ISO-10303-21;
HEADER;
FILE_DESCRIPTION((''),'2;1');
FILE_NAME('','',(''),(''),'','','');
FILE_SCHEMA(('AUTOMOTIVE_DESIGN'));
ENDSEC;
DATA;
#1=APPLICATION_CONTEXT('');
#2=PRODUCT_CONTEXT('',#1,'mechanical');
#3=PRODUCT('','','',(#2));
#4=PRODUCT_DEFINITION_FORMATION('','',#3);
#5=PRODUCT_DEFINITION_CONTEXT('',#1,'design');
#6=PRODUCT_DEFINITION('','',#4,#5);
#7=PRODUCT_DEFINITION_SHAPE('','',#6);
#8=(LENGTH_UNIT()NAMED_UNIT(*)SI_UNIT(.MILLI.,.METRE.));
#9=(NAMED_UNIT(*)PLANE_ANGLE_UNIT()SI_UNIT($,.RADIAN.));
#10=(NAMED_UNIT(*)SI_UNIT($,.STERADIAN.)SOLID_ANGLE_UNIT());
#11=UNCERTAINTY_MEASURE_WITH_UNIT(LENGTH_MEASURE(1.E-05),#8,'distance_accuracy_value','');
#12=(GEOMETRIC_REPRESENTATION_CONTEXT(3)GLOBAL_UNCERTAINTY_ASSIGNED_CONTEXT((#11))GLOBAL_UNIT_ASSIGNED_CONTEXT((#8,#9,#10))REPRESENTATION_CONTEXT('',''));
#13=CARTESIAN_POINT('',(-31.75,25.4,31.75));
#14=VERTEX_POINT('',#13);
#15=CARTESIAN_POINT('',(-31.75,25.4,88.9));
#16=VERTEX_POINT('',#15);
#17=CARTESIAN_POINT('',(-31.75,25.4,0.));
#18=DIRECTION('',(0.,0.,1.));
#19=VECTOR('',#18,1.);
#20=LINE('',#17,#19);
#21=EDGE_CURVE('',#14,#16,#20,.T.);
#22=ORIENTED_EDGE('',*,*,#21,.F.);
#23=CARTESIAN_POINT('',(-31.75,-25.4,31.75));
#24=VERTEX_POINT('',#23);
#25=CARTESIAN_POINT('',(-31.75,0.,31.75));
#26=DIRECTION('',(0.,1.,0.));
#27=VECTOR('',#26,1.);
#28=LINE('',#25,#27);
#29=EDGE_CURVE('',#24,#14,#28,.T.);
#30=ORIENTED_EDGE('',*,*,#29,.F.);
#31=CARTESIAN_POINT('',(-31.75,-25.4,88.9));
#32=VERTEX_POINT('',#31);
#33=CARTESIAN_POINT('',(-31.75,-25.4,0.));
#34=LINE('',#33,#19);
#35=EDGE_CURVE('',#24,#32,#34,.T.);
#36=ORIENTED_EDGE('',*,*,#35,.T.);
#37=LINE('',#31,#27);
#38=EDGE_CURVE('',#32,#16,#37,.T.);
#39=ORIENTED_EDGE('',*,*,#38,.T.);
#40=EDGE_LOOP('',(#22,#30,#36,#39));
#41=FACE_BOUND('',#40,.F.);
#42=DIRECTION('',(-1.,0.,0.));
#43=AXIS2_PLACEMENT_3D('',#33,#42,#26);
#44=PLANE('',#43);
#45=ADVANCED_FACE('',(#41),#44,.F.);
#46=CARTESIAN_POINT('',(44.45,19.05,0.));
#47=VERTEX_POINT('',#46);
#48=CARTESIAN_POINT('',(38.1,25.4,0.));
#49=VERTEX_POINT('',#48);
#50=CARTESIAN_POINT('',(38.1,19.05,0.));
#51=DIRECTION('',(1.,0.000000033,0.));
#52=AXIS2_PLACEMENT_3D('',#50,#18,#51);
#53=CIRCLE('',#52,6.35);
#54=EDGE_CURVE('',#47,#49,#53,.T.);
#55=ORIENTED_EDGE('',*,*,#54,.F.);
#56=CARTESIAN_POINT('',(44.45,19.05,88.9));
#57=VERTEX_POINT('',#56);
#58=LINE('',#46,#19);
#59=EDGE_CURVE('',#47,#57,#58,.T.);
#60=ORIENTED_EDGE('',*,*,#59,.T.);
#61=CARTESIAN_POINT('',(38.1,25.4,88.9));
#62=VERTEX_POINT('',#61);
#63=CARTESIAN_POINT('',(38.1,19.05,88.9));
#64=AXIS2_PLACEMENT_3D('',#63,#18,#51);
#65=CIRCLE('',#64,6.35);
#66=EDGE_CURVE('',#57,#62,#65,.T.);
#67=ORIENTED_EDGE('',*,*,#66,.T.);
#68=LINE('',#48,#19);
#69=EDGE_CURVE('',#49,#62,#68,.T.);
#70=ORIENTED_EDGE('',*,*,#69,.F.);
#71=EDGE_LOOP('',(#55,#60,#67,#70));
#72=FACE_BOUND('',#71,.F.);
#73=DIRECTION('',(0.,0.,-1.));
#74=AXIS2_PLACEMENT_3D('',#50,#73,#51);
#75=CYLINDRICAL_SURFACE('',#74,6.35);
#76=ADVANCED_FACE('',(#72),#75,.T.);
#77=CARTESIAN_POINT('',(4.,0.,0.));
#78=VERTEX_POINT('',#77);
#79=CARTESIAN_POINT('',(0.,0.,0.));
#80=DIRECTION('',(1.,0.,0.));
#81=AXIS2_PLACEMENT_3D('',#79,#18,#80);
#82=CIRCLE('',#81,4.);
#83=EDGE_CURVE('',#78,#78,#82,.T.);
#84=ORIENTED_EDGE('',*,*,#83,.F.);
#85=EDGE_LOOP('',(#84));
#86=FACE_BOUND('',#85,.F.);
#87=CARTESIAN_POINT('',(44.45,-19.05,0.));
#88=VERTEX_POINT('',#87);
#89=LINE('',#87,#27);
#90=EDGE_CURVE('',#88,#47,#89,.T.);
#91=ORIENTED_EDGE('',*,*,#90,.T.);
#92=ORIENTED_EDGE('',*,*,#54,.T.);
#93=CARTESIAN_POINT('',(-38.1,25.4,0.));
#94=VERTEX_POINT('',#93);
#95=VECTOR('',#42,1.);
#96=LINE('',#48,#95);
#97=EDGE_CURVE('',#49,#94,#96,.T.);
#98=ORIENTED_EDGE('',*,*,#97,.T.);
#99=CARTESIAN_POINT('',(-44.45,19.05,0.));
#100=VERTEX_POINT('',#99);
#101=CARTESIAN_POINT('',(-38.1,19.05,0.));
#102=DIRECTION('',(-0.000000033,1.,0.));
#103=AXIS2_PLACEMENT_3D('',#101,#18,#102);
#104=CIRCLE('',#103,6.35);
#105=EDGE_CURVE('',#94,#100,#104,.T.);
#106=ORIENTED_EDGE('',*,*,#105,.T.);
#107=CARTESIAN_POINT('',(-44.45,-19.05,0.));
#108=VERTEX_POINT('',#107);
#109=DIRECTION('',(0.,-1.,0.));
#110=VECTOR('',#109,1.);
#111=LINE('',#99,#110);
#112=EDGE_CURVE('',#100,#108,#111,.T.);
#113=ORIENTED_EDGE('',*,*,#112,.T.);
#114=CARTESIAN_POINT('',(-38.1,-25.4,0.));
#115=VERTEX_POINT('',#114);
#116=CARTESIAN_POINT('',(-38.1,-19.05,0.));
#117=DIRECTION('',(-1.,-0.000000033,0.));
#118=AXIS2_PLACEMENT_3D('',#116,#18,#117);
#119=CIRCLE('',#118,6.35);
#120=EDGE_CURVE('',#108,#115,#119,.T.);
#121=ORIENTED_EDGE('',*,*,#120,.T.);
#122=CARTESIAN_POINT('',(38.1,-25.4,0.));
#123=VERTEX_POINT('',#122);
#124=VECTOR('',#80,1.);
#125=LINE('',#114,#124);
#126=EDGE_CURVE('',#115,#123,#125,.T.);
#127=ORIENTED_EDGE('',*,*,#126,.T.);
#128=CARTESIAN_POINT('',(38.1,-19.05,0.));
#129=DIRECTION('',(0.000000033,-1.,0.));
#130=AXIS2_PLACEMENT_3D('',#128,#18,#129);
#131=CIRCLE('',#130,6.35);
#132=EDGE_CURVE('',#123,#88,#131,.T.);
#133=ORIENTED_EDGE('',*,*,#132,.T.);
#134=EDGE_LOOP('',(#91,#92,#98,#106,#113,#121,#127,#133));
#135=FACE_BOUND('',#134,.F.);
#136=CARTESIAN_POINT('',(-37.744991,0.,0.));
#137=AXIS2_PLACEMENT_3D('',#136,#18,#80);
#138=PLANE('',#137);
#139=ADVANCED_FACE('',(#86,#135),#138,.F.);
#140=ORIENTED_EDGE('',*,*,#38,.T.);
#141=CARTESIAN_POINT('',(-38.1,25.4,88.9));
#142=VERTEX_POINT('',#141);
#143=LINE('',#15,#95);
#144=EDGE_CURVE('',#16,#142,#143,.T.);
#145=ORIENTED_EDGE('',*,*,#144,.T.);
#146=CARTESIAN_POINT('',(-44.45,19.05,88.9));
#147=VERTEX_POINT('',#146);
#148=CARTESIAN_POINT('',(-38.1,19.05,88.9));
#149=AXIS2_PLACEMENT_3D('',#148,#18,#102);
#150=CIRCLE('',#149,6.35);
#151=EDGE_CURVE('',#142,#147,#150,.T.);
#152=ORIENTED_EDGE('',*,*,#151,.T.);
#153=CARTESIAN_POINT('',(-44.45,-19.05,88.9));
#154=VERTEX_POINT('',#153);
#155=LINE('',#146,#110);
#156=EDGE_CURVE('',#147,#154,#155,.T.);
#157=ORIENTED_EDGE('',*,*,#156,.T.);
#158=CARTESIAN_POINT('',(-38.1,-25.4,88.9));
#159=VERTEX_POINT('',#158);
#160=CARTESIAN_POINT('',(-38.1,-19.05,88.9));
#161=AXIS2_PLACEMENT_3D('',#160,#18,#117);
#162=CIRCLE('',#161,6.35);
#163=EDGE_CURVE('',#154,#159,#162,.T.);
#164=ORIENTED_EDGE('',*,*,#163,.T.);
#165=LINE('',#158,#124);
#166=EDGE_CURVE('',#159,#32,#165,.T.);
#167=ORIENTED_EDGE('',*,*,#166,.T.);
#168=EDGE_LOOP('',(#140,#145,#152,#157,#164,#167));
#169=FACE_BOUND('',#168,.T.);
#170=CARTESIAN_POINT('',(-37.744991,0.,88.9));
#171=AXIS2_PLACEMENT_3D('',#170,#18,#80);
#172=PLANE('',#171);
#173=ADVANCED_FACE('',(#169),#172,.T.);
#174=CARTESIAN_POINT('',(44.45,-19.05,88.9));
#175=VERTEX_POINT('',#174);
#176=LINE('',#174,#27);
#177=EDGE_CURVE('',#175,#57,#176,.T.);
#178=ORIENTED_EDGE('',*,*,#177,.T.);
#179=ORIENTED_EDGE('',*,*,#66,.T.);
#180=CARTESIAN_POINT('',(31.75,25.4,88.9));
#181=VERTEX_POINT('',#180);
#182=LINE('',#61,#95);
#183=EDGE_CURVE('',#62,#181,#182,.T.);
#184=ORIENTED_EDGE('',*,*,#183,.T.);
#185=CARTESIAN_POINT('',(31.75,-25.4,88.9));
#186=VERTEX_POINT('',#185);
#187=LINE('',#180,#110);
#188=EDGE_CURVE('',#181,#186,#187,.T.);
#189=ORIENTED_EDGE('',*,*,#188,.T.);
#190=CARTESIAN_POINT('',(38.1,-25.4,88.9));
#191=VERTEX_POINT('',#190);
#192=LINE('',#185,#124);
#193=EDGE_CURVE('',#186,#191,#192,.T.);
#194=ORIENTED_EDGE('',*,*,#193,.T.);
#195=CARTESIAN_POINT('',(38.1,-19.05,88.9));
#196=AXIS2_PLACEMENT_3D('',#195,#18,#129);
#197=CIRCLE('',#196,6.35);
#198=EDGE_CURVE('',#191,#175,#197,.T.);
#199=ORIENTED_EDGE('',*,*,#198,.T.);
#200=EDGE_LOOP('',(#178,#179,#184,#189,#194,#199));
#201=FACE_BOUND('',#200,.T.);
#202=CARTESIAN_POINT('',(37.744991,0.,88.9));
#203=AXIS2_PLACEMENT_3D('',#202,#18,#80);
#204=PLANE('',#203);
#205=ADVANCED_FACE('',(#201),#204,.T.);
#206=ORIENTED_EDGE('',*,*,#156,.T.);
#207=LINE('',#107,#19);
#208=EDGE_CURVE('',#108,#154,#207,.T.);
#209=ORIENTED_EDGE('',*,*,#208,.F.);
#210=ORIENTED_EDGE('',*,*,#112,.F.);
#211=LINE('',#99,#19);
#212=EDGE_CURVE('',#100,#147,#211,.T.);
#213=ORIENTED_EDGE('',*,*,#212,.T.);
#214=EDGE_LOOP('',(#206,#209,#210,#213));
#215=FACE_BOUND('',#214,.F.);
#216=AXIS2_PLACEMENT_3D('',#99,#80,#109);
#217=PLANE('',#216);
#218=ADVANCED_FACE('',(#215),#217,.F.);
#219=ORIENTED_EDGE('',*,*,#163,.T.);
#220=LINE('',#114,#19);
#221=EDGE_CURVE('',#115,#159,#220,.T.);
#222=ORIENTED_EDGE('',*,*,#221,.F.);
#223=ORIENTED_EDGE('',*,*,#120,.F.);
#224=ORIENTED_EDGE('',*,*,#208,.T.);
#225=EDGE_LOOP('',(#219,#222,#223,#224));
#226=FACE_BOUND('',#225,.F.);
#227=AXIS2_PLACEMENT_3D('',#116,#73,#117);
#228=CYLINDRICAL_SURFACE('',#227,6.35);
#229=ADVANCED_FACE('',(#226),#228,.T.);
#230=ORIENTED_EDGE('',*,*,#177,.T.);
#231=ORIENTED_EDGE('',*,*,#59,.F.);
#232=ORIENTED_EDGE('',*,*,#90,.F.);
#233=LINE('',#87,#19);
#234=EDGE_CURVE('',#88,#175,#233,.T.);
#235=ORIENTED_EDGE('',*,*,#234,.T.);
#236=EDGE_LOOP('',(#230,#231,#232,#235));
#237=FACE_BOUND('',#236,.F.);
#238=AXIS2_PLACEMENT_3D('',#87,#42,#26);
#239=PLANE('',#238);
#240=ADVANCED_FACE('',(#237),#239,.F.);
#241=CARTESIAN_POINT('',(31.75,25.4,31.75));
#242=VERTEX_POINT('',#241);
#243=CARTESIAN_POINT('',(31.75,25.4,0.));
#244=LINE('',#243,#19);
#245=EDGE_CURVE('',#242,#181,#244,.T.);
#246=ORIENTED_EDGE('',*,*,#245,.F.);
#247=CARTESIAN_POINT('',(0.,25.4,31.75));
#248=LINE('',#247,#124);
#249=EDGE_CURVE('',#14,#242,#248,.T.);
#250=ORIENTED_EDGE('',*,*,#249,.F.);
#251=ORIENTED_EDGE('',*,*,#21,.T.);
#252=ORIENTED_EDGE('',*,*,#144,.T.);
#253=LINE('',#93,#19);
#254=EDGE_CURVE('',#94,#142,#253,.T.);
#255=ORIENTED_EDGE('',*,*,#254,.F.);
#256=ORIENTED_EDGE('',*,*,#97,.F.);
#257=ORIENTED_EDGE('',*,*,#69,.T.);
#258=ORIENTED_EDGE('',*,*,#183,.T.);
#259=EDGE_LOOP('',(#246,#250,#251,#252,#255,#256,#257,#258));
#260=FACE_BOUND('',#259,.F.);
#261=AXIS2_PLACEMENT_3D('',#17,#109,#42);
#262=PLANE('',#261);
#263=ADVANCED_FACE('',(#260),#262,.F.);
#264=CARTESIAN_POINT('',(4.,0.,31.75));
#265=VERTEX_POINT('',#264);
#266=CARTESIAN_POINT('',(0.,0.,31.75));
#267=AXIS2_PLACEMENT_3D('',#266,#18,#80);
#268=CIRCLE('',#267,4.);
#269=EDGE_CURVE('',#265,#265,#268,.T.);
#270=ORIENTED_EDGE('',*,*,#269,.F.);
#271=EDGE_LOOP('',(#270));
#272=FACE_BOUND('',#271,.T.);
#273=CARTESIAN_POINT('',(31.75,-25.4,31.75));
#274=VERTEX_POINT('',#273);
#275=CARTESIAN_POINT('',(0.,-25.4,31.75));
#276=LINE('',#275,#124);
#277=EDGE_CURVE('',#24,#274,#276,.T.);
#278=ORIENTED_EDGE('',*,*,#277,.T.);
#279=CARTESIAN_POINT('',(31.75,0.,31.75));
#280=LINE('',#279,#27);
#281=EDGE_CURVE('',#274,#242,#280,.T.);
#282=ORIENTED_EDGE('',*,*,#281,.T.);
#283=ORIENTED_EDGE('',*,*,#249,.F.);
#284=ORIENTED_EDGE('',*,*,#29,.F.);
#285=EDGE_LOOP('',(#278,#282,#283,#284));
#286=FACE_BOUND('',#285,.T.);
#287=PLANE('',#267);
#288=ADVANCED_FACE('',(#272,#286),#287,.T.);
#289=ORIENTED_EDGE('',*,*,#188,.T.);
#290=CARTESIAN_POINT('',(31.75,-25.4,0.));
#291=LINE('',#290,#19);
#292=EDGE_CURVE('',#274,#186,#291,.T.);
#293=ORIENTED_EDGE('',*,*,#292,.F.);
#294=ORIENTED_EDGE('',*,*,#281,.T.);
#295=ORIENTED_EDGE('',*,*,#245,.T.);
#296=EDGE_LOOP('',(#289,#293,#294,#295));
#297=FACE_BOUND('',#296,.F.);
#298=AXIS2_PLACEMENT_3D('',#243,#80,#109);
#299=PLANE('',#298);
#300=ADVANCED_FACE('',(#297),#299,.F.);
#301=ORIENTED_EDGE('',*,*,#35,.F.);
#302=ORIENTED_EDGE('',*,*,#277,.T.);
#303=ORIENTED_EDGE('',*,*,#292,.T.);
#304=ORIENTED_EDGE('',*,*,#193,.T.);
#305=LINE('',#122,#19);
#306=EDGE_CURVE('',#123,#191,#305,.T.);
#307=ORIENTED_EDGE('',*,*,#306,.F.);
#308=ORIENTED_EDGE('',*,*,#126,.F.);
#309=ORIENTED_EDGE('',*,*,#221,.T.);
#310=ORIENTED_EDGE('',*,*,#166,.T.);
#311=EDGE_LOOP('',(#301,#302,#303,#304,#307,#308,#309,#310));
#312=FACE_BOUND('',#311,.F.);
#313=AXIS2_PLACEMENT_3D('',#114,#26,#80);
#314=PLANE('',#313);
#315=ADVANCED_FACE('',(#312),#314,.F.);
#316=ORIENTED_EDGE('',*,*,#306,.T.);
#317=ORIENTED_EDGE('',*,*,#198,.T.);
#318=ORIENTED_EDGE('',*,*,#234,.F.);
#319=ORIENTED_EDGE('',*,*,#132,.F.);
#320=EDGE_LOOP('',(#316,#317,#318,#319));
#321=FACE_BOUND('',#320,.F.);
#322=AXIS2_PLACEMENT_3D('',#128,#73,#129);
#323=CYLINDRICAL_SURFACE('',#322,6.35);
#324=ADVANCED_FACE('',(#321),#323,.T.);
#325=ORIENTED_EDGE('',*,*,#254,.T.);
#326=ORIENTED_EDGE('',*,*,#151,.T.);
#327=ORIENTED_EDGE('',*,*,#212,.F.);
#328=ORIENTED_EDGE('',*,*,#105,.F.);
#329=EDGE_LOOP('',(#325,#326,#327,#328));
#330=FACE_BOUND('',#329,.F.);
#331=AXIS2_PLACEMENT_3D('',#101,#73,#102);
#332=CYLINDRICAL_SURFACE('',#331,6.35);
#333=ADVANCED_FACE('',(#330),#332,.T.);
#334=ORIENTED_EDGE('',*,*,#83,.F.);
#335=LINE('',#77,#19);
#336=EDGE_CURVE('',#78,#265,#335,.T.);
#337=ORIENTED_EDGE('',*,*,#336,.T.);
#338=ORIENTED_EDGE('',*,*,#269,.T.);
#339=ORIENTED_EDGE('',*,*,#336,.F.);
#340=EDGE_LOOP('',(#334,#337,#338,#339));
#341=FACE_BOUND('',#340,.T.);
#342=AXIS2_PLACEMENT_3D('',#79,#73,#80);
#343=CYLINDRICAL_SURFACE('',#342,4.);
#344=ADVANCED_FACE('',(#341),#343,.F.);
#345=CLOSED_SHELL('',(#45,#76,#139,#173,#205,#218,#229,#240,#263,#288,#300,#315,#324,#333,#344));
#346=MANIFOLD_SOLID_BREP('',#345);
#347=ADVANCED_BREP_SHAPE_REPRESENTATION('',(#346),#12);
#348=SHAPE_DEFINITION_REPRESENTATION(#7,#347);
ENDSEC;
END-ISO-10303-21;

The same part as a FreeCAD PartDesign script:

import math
import FreeCAD as App
import Part
import Sketcher
from FreeCAD import Vector
Q = App.Units.Quantity

doc = App.newDocument("Part")
body = doc.addObject("PartDesign::Body", "Body")

# Sketch on XY plane
sketch1 = doc.addObject("Sketcher::SketchObject", "Sketch")
body.addObject(sketch1)
sketch1.AttachmentSupport = (doc.XY_Plane, [""])
sketch1.MapMode = "FlatFace"
sketch1.addGeometry([
    Part.LineSegment(Vector(-31.75, 25.4, 0), Vector(-31.75, -25.4, 0)),  # 0
    Part.LineSegment(Vector(-31.75, -25.4, 0), Vector(31.75, -25.4, 0)),  # 1
    Part.LineSegment(Vector(31.75, -25.4, 0), Vector(31.75, 25.4, 0)),  # 2
    Part.LineSegment(Vector(31.75, 25.4, 0), Vector(-31.75, 25.4, 0)),  # 3
    Part.Circle(Vector(0, 0, 0), Vector(0, 0, 1), 4),  # 4
], False)
sketch1.addConstraint([
    Sketcher.Constraint("Coincident", 0, 2, 1, 1),
    Sketcher.Constraint("Coincident", 1, 2, 2, 1),
    Sketcher.Constraint("Coincident", 2, 2, 3, 1),
    Sketcher.Constraint("Coincident", 3, 2, 0, 1),
    Sketcher.Constraint("Vertical", 0),
    Sketcher.Constraint("Horizontal", 1),
    Sketcher.Constraint("Vertical", 2),
    Sketcher.Constraint("Horizontal", 3),
    Sketcher.Constraint("Coincident", 4, 3, -1, 1),
    Sketcher.Constraint("Symmetric", 0, 2, 2, 2, -1, 1),
    Sketcher.Constraint("DistanceY", 0, 2, 0, 1, Q("2 in")),
    Sketcher.Constraint("DistanceX", 1, 1, 1, 2, Q("2.5 in")),
    Sketcher.Constraint("Diameter", 4, 8.0),
])
pad1 = doc.addObject("PartDesign::Pad", "Pad")
body.addObject(pad1)
pad1.Profile = sketch1
pad1.Length = Q("1.25 in")

# Sketch on XY plane
sketch2 = doc.addObject("Sketcher::SketchObject", "Sketch001")
body.addObject(sketch2)
sketch2.AttachmentSupport = (doc.XY_Plane, [""])
sketch2.MapMode = "FlatFace"
sketch2.addGeometry([
    Part.LineSegment(Vector(-31.75, -25.4, 0), Vector(-31.75, 25.4, 0)),  # 0
    Part.LineSegment(Vector(-31.75, 25.4, 0), Vector(-38.1, 25.4, 0)),  # 1
    Part.ArcOfCircle(Part.Circle(Vector(-38.1, 19.05, 0), Vector(0, 0, 1), 6.35), math.radians(90.000002), math.radians(179.999998)),  # 2
    Part.LineSegment(Vector(-44.45, 19.05, 0), Vector(-44.45, -19.05, 0)),  # 3
    Part.ArcOfCircle(Part.Circle(Vector(-38.1, -19.05, 0), Vector(0, 0, 1), 6.35), math.radians(-179.999998), math.radians(-90.000002)),  # 4
    Part.LineSegment(Vector(-38.1, -25.4, 0), Vector(-31.75, -25.4, 0)),  # 5
    Part.ArcOfCircle(Part.Circle(Vector(38.1, 19.05, 0), Vector(0, 0, 1), 6.35), math.radians(0.000002), math.radians(89.999998)),  # 6
    Part.LineSegment(Vector(38.1, 25.4, 0), Vector(31.75, 25.4, 0)),  # 7
    Part.LineSegment(Vector(31.75, 25.4, 0), Vector(31.75, -25.4, 0)),  # 8
    Part.LineSegment(Vector(31.75, -25.4, 0), Vector(38.1, -25.4, 0)),  # 9
    Part.ArcOfCircle(Part.Circle(Vector(38.1, -19.05, 0), Vector(0, 0, 1), 6.35), math.radians(-89.999998), math.radians(-0.000002)),  # 10
    Part.LineSegment(Vector(44.45, -19.05, 0), Vector(44.45, 19.05, 0)),  # 11
], False)
sketch2.addConstraint([
    Sketcher.Constraint("Coincident", 0, 2, 1, 1),
    Sketcher.Constraint("Tangent", 1, 2, 2, 1),
    Sketcher.Constraint("Tangent", 2, 2, 3, 1),
    Sketcher.Constraint("Tangent", 3, 2, 4, 1),
    Sketcher.Constraint("Tangent", 4, 2, 5, 1),
    Sketcher.Constraint("Coincident", 5, 2, 0, 1),
    Sketcher.Constraint("Tangent", 6, 2, 7, 1),
    Sketcher.Constraint("Coincident", 7, 2, 8, 1),
    Sketcher.Constraint("Coincident", 8, 2, 9, 1),
    Sketcher.Constraint("Tangent", 9, 2, 10, 1),
    Sketcher.Constraint("Tangent", 10, 2, 11, 1),
    Sketcher.Constraint("Tangent", 11, 2, 6, 1),
    Sketcher.Constraint("Vertical", 0),
    Sketcher.Constraint("Horizontal", 1),
    Sketcher.Constraint("Vertical", 3),
    Sketcher.Constraint("Horizontal", 5),
    Sketcher.Constraint("Horizontal", 7),
    Sketcher.Constraint("Vertical", 8),
    Sketcher.Constraint("Horizontal", 9),
    Sketcher.Constraint("Vertical", 11),
    Sketcher.Constraint("Equal", 2, 4),
    Sketcher.Constraint("Equal", 4, 6),
    Sketcher.Constraint("Equal", 6, 10),
    Sketcher.Constraint("Symmetric", 4, 3, 6, 3, -1, 1),
    Sketcher.Constraint("Symmetric", 0, 2, 8, 2, -1, 1),
    Sketcher.Constraint("Horizontal", 2, 3, 6, 3),
    Sketcher.Constraint("DistanceY", 0, 1, 0, 2, Q("2 in")),
    Sketcher.Constraint("Radius", 2, Q("0.25 in")),
    Sketcher.Constraint("DistanceX", 2, 3, 6, 3, Q("3 in")),
    Sketcher.Constraint("DistanceX", 1, 2, 1, 1, Q("0.25 in")),
])
pad2 = doc.addObject("PartDesign::Pad", "Pad001")
body.addObject(pad2)
pad2.Profile = sketch2
pad2.Length = Q("3.5 in")

doc.recompute()
